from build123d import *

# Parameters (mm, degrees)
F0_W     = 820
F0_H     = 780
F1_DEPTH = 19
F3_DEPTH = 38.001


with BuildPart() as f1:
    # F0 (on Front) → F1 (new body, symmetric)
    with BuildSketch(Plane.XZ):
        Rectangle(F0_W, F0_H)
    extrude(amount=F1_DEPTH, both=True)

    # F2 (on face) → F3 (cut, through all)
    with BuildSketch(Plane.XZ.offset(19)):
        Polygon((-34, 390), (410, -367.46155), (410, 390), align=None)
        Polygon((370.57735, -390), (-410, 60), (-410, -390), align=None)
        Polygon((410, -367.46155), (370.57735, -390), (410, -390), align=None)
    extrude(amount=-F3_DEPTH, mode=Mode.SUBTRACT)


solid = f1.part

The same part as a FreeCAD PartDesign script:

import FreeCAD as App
import Part
import Sketcher
from FreeCAD import Vector

doc = App.newDocument("Part")
params = doc.addObject("Spreadsheet::Sheet", "Params")
for row, (alias, value) in enumerate([
    ("sketch1_width", "820 mm"),
    ("sketch1_height", "780 mm"),
    ("pad1_length", "38 mm"),
    ("sketch2_width", "444 mm"),
    ("sketch2_height", "450 mm"),
    ("sketch2_length", "878 mm"),
    ("sketch2_length2", "901 mm"),
], start=1):
    params.set(f"A{row}", alias)
    params.set(f"B{row}", "=" + value)
    params.setAlias(f"B{row}", alias)

body = doc.addObject("PartDesign::Body", "Body")

# Sketch on XZ plane
sketch1 = body.newObject("Sketcher::SketchObject", "Sketch")
sketch1.AttachmentSupport = (doc.getObject("XZ_Plane"), [""])
sketch1.MapMode = "FlatFace"
sketch1.addGeometry(Part.LineSegment(Vector(-410, 390, 0), Vector(-410, -390, 0)), False)
sketch1.addGeometry(Part.LineSegment(Vector(-410, -390, 0), Vector(410, -390, 0)), False)
sketch1.addGeometry(Part.LineSegment(Vector(410, -390, 0), Vector(410, 390, 0)), False)
sketch1.addGeometry(Part.LineSegment(Vector(410, 390, 0), Vector(-410, 390, 0)), False)
sketch1.addConstraint(Sketcher.Constraint("Coincident", 0, 2, 1, 1))
sketch1.addConstraint(Sketcher.Constraint("Coincident", 1, 2, 2, 1))
sketch1.addConstraint(Sketcher.Constraint("Coincident", 2, 2, 3, 1))
sketch1.addConstraint(Sketcher.Constraint("Coincident", 3, 2, 0, 1))
sketch1.addConstraint(Sketcher.Constraint("Vertical", 0))
sketch1.addConstraint(Sketcher.Constraint("Horizontal", 1))
sketch1.addConstraint(Sketcher.Constraint("Vertical", 2))
sketch1.addConstraint(Sketcher.Constraint("Horizontal", 3))
sketch1.addConstraint(Sketcher.Constraint("Symmetric", 0, 2, 2, 2, -1, 1))
sketch1.addConstraint(Sketcher.Constraint("DistanceX", 1, 1, 1, 2, 820.0))
sketch1.addConstraint(Sketcher.Constraint("DistanceY", 0, 2, 0, 1, 780.0))
sketch1.setExpression("Constraints[9]", "Params.sketch1_width")
sketch1.setExpression("Constraints[10]", "Params.sketch1_height")
pad1 = body.newObject("PartDesign::Pad", "Pad")
pad1.Profile = sketch1
pad1.setExpression("Length", "Params.pad1_length")
pad1.Midplane = True

# Sketch on XZ plane
sketch2 = body.newObject("Sketcher::SketchObject", "Sketch001")
sketch2.AttachmentSupport = (doc.getObject("XZ_Plane"), [""])
sketch2.MapMode = "FlatFace"
sketch2.AttachmentOffset = App.Placement(Vector(0, 0, 19), App.Rotation())
sketch2.addGeometry(Part.LineSegment(Vector(-34, 390, 0), Vector(410, -367.46155, 0)), False)
sketch2.addGeometry(Part.LineSegment(Vector(410, -367.46155, 0), Vector(410, 390, 0)), False)
sketch2.addGeometry(Part.LineSegment(Vector(410, 390, 0), Vector(-34, 390, 0)), False)
sketch2.addGeometry(Part.LineSegment(Vector(370.57735, -390, 0), Vector(-410, 60, 0)), False)
sketch2.addGeometry(Part.LineSegment(Vector(-410, 60, 0), Vector(-410, -390, 0)), False)
sketch2.addGeometry(Part.LineSegment(Vector(-410, -390, 0), Vector(370.57735, -390, 0)), False)
sketch2.addGeometry(Part.LineSegment(Vector(410, -367.46155, 0), Vector(370.57735, -390, 0)), False)
sketch2.addGeometry(Part.LineSegment(Vector(370.57735, -390, 0), Vector(410, -390, 0)), False)
sketch2.addGeometry(Part.LineSegment(Vector(410, -390, 0), Vector(410, -367.46155, 0)), False)
sketch2.addConstraint(Sketcher.Constraint("Coincident", 0, 2, 1, 1))
sketch2.addConstraint(Sketcher.Constraint("Coincident", 1, 2, 2, 1))
sketch2.addConstraint(Sketcher.Constraint("Coincident", 2, 2, 0, 1))
sketch2.addConstraint(Sketcher.Constraint("Coincident", 3, 2, 4, 1))
sketch2.addConstraint(Sketcher.Constraint("Coincident", 4, 2, 5, 1))
sketch2.addConstraint(Sketcher.Constraint("Coincident", 5, 2, 3, 1))
sketch2.addConstraint(Sketcher.Constraint("Coincident", 6, 2, 7, 1))
sketch2.addConstraint(Sketcher.Constraint("Coincident", 7, 2, 8, 1))
sketch2.addConstraint(Sketcher.Constraint("Coincident", 8, 2, 6, 1))
sketch2.addConstraint(Sketcher.Constraint("Vertical", 1))
sketch2.addConstraint(Sketcher.Constraint("Horizontal", 2))
sketch2.addConstraint(Sketcher.Constraint("Vertical", 4))
sketch2.addConstraint(Sketcher.Constraint("Horizontal", 5))
sketch2.addConstraint(Sketcher.Constraint("Horizontal", 7))
sketch2.addConstraint(Sketcher.Constraint("Vertical", 8))
sketch2.addConstraint(Sketcher.Constraint("Coincident", 6, 2, 5, 2))
sketch2.addConstraint(Sketcher.Constraint("Coincident", 8, 2, 0, 2))
sketch2.addConstraint(Sketcher.Constraint("Symmetric", 1, 2, 4, 2, -1, 1))
sketch2.addConstraint(Sketcher.Constraint("DistanceX", 2, 2, 2, 1, 444.0))
sketch2.addConstraint(Sketcher.Constraint("DistanceY", 4, 2, 4, 1, 450.0))
sketch2.addConstraint(Sketcher.Constraint("Distance", 0, 878.0))
sketch2.addConstraint(Sketcher.Constraint("Distance", 3, 901.0))
sketch2.addConstraint(Sketcher.Constraint("DistanceX", -1, 1, 0, 2, 410.0))
sketch2.addConstraint(Sketcher.Constraint("DistanceY", -1, 1, 1, 2, 390.0))
sketch2.setExpression("Constraints[18]", "Params.sketch2_width")
sketch2.setExpression("Constraints[19]", "Params.sketch2_height")
sketch2.setExpression("Constraints[20]", "Params.sketch2_length")
sketch2.setExpression("Constraints[21]", "Params.sketch2_length2")
pocket1 = body.newObject("PartDesign::Pocket", "Pocket")
pocket1.Profile = sketch2
pocket1.Type = "ThroughAll"

doc.recompute()
